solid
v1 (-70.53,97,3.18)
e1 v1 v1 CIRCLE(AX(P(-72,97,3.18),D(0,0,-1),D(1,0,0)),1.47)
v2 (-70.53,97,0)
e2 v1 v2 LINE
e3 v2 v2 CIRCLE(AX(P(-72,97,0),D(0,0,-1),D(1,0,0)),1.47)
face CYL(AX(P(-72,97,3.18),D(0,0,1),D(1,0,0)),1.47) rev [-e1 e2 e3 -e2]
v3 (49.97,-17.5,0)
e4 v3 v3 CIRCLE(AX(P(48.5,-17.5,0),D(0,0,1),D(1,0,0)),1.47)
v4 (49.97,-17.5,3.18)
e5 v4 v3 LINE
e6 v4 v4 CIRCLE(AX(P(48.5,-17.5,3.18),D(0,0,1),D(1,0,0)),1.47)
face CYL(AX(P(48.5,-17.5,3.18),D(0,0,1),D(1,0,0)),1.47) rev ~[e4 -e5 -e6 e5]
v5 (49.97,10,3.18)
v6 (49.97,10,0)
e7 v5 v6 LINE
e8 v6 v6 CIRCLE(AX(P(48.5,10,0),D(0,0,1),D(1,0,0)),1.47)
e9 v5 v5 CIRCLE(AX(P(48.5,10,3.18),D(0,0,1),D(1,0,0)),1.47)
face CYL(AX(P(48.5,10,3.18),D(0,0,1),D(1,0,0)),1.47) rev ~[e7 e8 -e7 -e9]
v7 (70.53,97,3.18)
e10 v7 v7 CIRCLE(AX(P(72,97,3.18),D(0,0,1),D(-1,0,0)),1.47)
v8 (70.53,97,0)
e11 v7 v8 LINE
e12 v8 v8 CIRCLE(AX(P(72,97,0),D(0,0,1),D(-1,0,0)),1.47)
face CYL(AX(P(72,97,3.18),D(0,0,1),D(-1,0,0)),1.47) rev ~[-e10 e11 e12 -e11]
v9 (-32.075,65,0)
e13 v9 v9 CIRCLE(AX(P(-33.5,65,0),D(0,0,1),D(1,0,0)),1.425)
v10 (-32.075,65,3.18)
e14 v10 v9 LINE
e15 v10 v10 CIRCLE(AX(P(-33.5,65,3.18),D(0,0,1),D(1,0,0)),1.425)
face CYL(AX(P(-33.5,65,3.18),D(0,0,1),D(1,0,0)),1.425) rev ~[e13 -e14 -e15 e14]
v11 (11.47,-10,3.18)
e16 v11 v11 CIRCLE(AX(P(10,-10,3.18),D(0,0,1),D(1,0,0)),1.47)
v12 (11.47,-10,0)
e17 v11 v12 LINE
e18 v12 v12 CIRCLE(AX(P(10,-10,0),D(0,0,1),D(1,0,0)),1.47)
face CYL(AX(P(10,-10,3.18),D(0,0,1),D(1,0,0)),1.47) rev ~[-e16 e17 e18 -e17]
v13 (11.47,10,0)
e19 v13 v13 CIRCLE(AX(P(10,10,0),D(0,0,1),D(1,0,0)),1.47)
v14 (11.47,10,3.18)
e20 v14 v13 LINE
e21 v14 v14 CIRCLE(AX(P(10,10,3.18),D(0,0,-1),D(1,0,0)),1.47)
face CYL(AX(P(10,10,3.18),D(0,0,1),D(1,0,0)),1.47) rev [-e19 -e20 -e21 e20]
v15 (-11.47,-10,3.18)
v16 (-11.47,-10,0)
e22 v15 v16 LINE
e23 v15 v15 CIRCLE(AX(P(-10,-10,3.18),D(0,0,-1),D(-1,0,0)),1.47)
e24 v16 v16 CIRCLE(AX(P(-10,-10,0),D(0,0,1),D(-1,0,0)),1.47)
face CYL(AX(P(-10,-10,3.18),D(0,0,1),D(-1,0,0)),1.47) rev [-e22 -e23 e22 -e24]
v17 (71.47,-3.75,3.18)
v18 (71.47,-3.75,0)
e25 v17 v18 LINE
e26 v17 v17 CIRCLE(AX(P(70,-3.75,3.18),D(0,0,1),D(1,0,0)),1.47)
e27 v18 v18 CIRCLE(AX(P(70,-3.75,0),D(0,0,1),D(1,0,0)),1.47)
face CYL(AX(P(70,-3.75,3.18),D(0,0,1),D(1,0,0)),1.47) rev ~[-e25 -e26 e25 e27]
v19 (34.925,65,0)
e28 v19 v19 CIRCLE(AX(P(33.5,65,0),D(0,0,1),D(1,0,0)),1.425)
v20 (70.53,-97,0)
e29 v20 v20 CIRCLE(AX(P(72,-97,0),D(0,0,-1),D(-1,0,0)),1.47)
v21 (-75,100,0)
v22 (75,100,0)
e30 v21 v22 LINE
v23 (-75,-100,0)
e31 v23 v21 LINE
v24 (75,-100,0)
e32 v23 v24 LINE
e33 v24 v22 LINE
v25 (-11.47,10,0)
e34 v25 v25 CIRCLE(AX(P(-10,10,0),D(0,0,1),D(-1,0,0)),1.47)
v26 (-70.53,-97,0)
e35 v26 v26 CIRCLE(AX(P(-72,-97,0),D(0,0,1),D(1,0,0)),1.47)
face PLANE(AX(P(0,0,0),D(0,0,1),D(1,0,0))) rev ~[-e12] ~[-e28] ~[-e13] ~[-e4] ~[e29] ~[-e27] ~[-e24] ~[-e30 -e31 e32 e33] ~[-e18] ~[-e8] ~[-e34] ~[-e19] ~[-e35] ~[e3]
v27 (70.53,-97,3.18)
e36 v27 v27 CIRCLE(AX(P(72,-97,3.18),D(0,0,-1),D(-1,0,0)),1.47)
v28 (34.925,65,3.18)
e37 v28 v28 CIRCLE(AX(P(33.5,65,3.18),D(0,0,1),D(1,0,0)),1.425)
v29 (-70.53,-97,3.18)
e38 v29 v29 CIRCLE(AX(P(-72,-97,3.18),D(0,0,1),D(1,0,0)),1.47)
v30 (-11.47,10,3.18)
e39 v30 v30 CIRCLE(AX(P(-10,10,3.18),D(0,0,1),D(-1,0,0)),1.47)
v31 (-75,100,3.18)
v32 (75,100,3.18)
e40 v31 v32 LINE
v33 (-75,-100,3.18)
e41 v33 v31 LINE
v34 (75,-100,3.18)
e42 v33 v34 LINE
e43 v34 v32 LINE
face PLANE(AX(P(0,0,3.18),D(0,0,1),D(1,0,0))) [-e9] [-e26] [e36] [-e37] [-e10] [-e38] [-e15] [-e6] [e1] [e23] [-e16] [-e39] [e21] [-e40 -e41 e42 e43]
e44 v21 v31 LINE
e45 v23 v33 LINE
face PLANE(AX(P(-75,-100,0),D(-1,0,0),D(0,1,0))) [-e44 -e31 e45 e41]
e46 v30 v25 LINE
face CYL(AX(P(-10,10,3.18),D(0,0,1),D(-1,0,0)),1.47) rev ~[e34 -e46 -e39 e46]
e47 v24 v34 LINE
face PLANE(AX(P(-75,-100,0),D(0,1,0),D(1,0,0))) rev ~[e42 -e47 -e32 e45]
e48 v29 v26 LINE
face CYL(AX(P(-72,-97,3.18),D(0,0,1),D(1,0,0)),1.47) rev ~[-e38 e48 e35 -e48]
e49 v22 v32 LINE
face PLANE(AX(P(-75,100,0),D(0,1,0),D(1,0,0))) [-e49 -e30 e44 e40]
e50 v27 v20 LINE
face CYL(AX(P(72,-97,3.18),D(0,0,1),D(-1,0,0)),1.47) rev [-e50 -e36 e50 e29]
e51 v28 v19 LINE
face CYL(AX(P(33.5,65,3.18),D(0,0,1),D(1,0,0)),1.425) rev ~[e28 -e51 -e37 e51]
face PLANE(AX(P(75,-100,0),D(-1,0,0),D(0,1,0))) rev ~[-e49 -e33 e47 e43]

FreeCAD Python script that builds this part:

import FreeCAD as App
import Part
import Sketcher

V = App.Vector
Q = App.Units.Quantity

doc = App.newDocument("Part")
params = doc.addObject("Spreadsheet::Sheet", "Params")
for row, (alias, value) in enumerate([
    ("sketch1_width", "150 mm"),
    ("sketch1_height", "200 mm"),
    ("pad1_length", "3.18 mm"),
    ("sketch2_diameter", "2.94 mm"),
    ("pocket1_length", "10 mm"),
    ("sketch3_diameter", "2.94 mm"),
    ("pocket2_length", "10 mm"),
    ("sketch4_diameter", "2.94 mm"),
    ("pocket3_length", "3.18 mm"),
    ("sketch5_diameter", "2.94 mm"),
    ("pocket4_length", "3.18 mm"),
    ("sketch6_diameter", "2.85 mm"),
    ("pocket5_length", "3.18 mm"),
    ("sketch7_diameter", "2.94 mm"),
    ("pocket6_length", "3.18 mm"),
], start=1):
    params.set(f"A{row}", alias)
    params.set(f"B{row}", "=" + value)
    params.setAlias(f"B{row}", alias)

body = doc.addObject("PartDesign::Body", "Body")

sketch1 = body.newObject("Sketcher::SketchObject", "Sketch")
sketch1.AttachmentSupport = (doc.getObject("XY_Plane"), [""])
sketch1.MapMode = "FlatFace"
sketch1.addGeometry(Part.LineSegment(V(-75, 100, 0), V(-75, -100, 0)), False)
sketch1.addGeometry(Part.LineSegment(V(-75, -100, 0), V(75, -100, 0)), False)
sketch1.addGeometry(Part.LineSegment(V(75, -100, 0), V(75, 100, 0)), False)
sketch1.addGeometry(Part.LineSegment(V(75, 100, 0), V(-75, 100, 0)), False)
sketch1.addConstraint(Sketcher.Constraint("Coincident", 0, 2, 1, 1))
sketch1.addConstraint(Sketcher.Constraint("Coincident", 1, 2, 2, 1))
sketch1.addConstraint(Sketcher.Constraint("Coincident", 2, 2, 3, 1))
sketch1.addConstraint(Sketcher.Constraint("Coincident", 3, 2, 0, 1))
sketch1.addConstraint(Sketcher.Constraint("Vertical", 0))
sketch1.addConstraint(Sketcher.Constraint("Horizontal", 1))
sketch1.addConstraint(Sketcher.Constraint("Vertical", 2))
sketch1.addConstraint(Sketcher.Constraint("Horizontal", 3))
sketch1.addConstraint(Sketcher.Constraint("Symmetric", 0, 2, 2, 2, -1, 1))
sketch1.addConstraint(Sketcher.Constraint("DistanceX", 1, 1, 1, 2, Q("150 mm")))
sketch1.addConstraint(Sketcher.Constraint("DistanceY", 0, 2, 0, 1, Q("200 mm")))
sketch1.setExpression("Constraints[9]", "Params.sketch1_width")
sketch1.setExpression("Constraints[10]", "Params.sketch1_height")
pad1 = body.newObject("PartDesign::Pad", "Pad")
pad1.Profile = sketch1
pad1.setExpression("Length", "Params.pad1_length")

sketch2 = body.newObject("Sketcher::SketchObject", "Sketch001")
sketch2.AttachmentSupport = (doc.getObject("XY_Plane"), [""])
sketch2.MapMode = "FlatFace"
sketch2.AttachmentOffset = App.Placement(V(0, 0, 3.18), App.Rotation())
sketch2.addGeometry(Part.Circle(V(10, -10, 0), V(0, 0, 1), 1.47), False)
sketch2.addConstraint(Sketcher.Constraint("Diameter", 0, Q("2.94 mm")))
sketch2.addConstraint(Sketcher.Constraint("DistanceX", -1, 1, 0, 3, Q("10 mm")))
sketch2.addConstraint(Sketcher.Constraint("DistanceY", 0, 3, -1, 1, Q("10 mm")))
sketch2.setExpression("Constraints[0]", "Params.sketch2_diameter")
pocket1 = body.newObject("PartDesign::Pocket", "Pocket")
pocket1.Profile = sketch2
pocket1.setExpression("Length", "Params.pocket1_length")
doc.recompute()

mirrored = body.newObject("PartDesign::Mirrored", "Mirrored")
mirrored.Originals = [pocket1]
mirrored.MirrorPlane = (doc.getObject("YZ_Plane"), [""])
body.Tip = mirrored
doc.recompute()

mirrored2 = body.newObject("PartDesign::Mirrored", "Mirrored001")
mirrored2.Originals = [pocket1]
mirrored2.MirrorPlane = (doc.getObject("XZ_Plane"), [""])
body.Tip = mirrored2

sketch3 = body.newObject("Sketcher::SketchObject", "Sketch002")
sketch3.AttachmentSupport = (doc.getObject("XY_Plane"), [""])
sketch3.MapMode = "FlatFace"
sketch3.AttachmentOffset = App.Placement(V(0, 0, 3.18), App.Rotation())
sketch3.addGeometry(Part.Circle(V(-10, 10, 0), V(0, 0, 1), 1.47), False)
sketch3.addConstraint(Sketcher.Constraint("Diameter", 0, Q("2.94 mm")))
sketch3.addConstraint(Sketcher.Constraint("DistanceX", 0, 3, -1, 1, Q("10 mm")))
sketch3.addConstraint(Sketcher.Constraint("DistanceY", -1, 1, 0, 3, Q("10 mm")))
sketch3.setExpression("Constraints[0]", "Params.sketch3_diameter")
pocket2 = body.newObject("PartDesign::Pocket", "Pocket001")
pocket2.Profile = sketch3
pocket2.setExpression("Length", "Params.pocket2_length")

sketch4 = body.newObject("Sketcher::SketchObject", "Sketch003")
sketch4.AttachmentSupport = (doc.getObject("XY_Plane"), [""])
sketch4.MapMode = "FlatFace"
sketch4.AttachmentOffset = App.Placement(V(0, 0, 3.18), App.Rotation())
sketch4.addGeometry(Part.Circle(V(-72, -97, 0), V(0, 0, 1), 1.47), False)
sketch4.addConstraint(Sketcher.Constraint("Diameter", 0, Q("2.94 mm")))
sketch4.addConstraint(Sketcher.Constraint("DistanceX", 0, 3, -1, 1, Q("72 mm")))
sketch4.addConstraint(Sketcher.Constraint("DistanceY", 0, 3, -1, 1, Q("97 mm")))
sketch4.setExpression("Constraints[0]", "Params.sketch4_diameter")
pocket3 = body.newObject("PartDesign::Pocket", "Pocket002")
pocket3.Profile = sketch4
pocket3.setExpression("Length", "Params.pocket3_length")
doc.recompute()

mirrored3 = body.newObject("PartDesign::Mirrored", "Mirrored002")
mirrored3.Originals = [pocket3]
mirrored3.MirrorPlane = (doc.getObject("YZ_Plane"), [""])
body.Tip = mirrored3
doc.recompute()

mirrored4 = body.newObject("PartDesign::Mirrored", "Mirrored003")
mirrored4.Originals = [pocket3]
mirrored4.MirrorPlane = (doc.getObject("XZ_Plane"), [""])
body.Tip = mirrored4

sketch5 = body.newObject("Sketcher::SketchObject", "Sketch004")
sketch5.AttachmentSupport = (doc.getObject("XY_Plane"), [""])
sketch5.MapMode = "FlatFace"
sketch5.AttachmentOffset = App.Placement(V(0, 0, 3.18), App.Rotation())
sketch5.addGeometry(Part.Circle(V(72, 97, 0), V(0, 0, 1), 1.47), False)
sketch5.addConstraint(Sketcher.Constraint("Diameter", 0, Q("2.94 mm")))
sketch5.addConstraint(Sketcher.Constraint("DistanceX", -1, 1, 0, 3, Q("72 mm")))
sketch5.addConstraint(Sketcher.Constraint("DistanceY", -1, 1, 0, 3, Q("97 mm")))
sketch5.setExpression("Constraints[0]", "Params.sketch5_diameter")
pocket4 = body.newObject("PartDesign::Pocket", "Pocket003")
pocket4.Profile = sketch5
pocket4.setExpression("Length", "Params.pocket4_length")

sketch6 = body.newObject("Sketcher::SketchObject", "Sketch005")
sketch6.AttachmentSupport = (doc.getObject("XY_Plane"), [""])
sketch6.MapMode = "FlatFace"
sketch6.AttachmentOffset = App.Placement(V(0, 0, 3.18), App.Rotation())
sketch6.addGeometry(Part.Circle(V(33.5, 65, 0), V(0, 0, 1), 1.425), False)
sketch6.addGeometry(Part.Circle(V(-33.5, 65, 0), V(0, 0, 1), 1.425), False)
sketch6.addConstraint(Sketcher.Constraint("Equal", 0, 1))
sketch6.addConstraint(Sketcher.Constraint("Symmetric", 0, 3, 1, 3, -2))
sketch6.addConstraint(Sketcher.Constraint("Diameter", 0, Q("2.85 mm")))
sketch6.addConstraint(Sketcher.Constraint("DistanceY", -1, 1, 0, 3, Q("65 mm")))
sketch6.addConstraint(Sketcher.Constraint("DistanceX", 1, 3, 0, 3, Q("67 mm")))
sketch6.setExpression("Constraints[2]", "Params.sketch6_diameter")
pocket5 = body.newObject("PartDesign::Pocket", "Pocket004")
pocket5.Profile = sketch6
pocket5.setExpression("Length", "Params.pocket5_length")

sketch7 = body.newObject("Sketcher::SketchObject", "Sketch006")
sketch7.AttachmentSupport = (doc.getObject("XY_Plane"), [""])
sketch7.MapMode = "FlatFace"
sketch7.AttachmentOffset = App.Placement(V(0, 0, 3.18), App.Rotation())
sketch7.addGeometry(Part.Circle(V(70, -3.75, 0), V(0, 0, 1), 1.47), False)
sketch7.addGeometry(Part.Circle(V(48.5, 10, 0), V(0, 0, 1), 1.47), False)
sketch7.addGeometry(Part.Circle(V(48.5, -17.5, 0), V(0, 0, 1), 1.47), False)
sketch7.addConstraint(Sketcher.Constraint("Equal", 0, 1))
sketch7.addConstraint(Sketcher.Constraint("Equal", 1, 2))
sketch7.addConstraint(Sketcher.Constraint("Vertical", 1, 3, 2, 3))
sketch7.addConstraint(Sketcher.Constraint("Diameter", 0, Q("2.94 mm")))
sketch7.addConstraint(Sketcher.Constraint("DistanceX", -1, 1, 0, 3, Q("70 mm")))
sketch7.addConstraint(Sketcher.Constraint("DistanceY", -1, 1, 1, 3, Q("10 mm")))
sketch7.addConstraint(Sketcher.Constraint("DistanceX", -1, 1, 1, 3, Q("48.5 mm")))
sketch7.addConstraint(Sketcher.Constraint("DistanceY", 2, 3, -1, 1, Q("17.5 mm")))
sketch7.addConstraint(Sketcher.Constraint("DistanceY", 0, 3, -1, 1, Q("3.75 mm")))
sketch7.setExpression("Constraints[3]", "Params.sketch7_diameter")
pocket6 = body.newObject("PartDesign::Pocket", "Pocket005")
pocket6.Profile = sketch7
pocket6.setExpression("Length", "Params.pocket6_length")

doc.recompute()
